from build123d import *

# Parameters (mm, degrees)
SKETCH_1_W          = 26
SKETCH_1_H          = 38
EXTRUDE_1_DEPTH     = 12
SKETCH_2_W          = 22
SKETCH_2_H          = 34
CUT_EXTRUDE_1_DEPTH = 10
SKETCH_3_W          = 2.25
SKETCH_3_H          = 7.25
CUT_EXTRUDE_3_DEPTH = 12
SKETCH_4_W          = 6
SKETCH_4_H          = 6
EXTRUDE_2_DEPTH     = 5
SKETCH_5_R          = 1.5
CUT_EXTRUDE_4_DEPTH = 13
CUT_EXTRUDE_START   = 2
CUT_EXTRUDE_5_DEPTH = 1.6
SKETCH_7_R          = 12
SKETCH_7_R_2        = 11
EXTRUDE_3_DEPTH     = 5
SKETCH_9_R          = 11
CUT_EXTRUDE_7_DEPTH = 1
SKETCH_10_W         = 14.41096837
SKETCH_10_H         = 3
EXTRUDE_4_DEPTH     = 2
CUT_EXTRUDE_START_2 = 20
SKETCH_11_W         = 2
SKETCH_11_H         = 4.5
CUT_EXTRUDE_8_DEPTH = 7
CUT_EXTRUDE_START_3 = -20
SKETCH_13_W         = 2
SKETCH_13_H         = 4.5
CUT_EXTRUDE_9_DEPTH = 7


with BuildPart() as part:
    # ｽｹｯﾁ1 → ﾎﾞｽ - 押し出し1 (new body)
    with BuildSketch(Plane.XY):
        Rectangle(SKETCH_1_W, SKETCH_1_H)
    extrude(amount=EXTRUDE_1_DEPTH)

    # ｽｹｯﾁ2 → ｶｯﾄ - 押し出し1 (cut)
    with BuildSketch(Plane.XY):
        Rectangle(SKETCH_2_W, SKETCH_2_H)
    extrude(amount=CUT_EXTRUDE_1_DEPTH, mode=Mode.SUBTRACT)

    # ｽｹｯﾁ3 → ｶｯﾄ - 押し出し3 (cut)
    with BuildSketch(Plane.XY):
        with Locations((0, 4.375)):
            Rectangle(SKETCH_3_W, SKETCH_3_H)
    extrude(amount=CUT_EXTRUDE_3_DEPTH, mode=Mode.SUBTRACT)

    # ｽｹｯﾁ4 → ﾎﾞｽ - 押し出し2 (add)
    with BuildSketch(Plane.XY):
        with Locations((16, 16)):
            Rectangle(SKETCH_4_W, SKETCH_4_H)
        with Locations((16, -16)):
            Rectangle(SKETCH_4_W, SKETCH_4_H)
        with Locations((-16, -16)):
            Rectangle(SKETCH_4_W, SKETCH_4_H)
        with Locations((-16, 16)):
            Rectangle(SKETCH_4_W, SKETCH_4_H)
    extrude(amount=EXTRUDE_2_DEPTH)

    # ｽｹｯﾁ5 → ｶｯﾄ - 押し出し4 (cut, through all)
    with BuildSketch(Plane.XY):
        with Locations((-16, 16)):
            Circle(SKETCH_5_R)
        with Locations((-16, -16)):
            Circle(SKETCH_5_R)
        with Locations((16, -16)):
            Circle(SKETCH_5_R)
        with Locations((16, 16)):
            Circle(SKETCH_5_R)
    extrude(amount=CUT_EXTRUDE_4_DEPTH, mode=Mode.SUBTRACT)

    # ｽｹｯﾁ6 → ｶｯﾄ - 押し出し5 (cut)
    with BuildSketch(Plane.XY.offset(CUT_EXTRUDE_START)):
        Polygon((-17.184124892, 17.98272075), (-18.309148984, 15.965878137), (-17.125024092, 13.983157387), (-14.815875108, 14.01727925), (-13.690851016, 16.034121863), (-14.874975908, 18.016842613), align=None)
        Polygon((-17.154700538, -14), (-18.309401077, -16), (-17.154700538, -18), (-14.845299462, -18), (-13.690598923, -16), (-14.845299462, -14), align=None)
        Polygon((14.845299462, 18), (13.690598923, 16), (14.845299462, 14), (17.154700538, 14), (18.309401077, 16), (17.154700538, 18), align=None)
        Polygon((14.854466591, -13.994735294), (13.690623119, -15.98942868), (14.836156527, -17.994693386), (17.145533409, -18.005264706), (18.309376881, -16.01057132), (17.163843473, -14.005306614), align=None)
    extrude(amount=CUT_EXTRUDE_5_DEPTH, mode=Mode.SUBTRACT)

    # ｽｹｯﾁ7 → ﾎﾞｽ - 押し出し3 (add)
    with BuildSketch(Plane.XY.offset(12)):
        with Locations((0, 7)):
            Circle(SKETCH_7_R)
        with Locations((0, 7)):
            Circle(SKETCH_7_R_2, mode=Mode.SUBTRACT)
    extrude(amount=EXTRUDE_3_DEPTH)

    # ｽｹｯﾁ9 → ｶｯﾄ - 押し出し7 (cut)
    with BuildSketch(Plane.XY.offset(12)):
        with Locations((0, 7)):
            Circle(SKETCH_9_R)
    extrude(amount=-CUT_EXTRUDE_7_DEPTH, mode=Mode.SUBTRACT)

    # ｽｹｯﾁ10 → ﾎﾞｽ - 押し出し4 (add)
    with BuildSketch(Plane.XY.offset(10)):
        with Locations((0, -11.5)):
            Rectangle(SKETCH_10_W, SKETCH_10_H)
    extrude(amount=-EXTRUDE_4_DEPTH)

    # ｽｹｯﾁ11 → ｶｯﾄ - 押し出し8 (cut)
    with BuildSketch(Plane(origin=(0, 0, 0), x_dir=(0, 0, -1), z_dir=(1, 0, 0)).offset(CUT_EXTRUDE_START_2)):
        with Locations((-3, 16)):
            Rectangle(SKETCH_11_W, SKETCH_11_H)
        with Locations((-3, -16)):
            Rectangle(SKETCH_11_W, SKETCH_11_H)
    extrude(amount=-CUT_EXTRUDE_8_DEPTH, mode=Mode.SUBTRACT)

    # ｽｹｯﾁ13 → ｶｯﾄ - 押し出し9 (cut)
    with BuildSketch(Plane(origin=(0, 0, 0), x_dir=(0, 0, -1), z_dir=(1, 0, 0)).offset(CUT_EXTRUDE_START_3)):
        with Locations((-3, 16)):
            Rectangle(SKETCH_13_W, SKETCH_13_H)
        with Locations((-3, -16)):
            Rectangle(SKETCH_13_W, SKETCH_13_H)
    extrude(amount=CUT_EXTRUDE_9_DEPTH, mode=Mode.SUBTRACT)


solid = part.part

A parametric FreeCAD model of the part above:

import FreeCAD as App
import Part
import Sketcher
Q = App.Units.Quantity


def add_polygon(sketch, points):
    """Adds a closed chain of lines whose ends are joined by coincident constraints."""
    first, n = sketch.GeometryCount, len(points)
    for a, b in zip(points, points[1:] + points[:1]):
        sketch.addGeometry(Part.LineSegment(App.Vector(*a, 0), App.Vector(*b, 0)), False)
    for i in range(n):
        sketch.addConstraint(Sketcher.Constraint("Coincident", first + i, 2, first + (i + 1) % n, 1))

doc = App.newDocument("Part")
body = doc.addObject("PartDesign::Body", "Body")

# Sketch on XY plane
sketch1 = body.newObject("Sketcher::SketchObject", "Sketch")
sketch1.AttachmentSupport = (doc.getObject("XY_Plane"), [""])
sketch1.MapMode = "FlatFace"
add_polygon(sketch1, [(-13, 19), (-13, -19), (13, -19), (13, 19)])  # lines 0-3
sketch1.addConstraint(Sketcher.Constraint("Vertical", 0))
sketch1.addConstraint(Sketcher.Constraint("Horizontal", 1))
sketch1.addConstraint(Sketcher.Constraint("Vertical", 2))
sketch1.addConstraint(Sketcher.Constraint("Horizontal", 3))
sketch1.addConstraint(Sketcher.Constraint("Symmetric", 0, 2, 2, 2, -1, 1))
sketch1.addConstraint(Sketcher.Constraint("DistanceX", 1, 1, 1, 2, Q("26 mm")))
sketch1.addConstraint(Sketcher.Constraint("DistanceY", 0, 2, 0, 1, Q("38 mm")))
pad1 = body.newObject("PartDesign::Pad", "Pad")
pad1.Profile = sketch1
pad1.Length = 12

# Sketch on XY plane
sketch2 = body.newObject("Sketcher::SketchObject", "Sketch001")
sketch2.AttachmentSupport = (doc.getObject("XY_Plane"), [""])
sketch2.MapMode = "FlatFace"
add_polygon(sketch2, [(-11, 17), (-11, -17), (11, -17), (11, 17)])  # lines 0-3
sketch2.addConstraint(Sketcher.Constraint("Vertical", 0))
sketch2.addConstraint(Sketcher.Constraint("Horizontal", 1))
sketch2.addConstraint(Sketcher.Constraint("Vertical", 2))
sketch2.addConstraint(Sketcher.Constraint("Horizontal", 3))
sketch2.addConstraint(Sketcher.Constraint("Symmetric", 0, 2, 2, 2, -1, 1))
sketch2.addConstraint(Sketcher.Constraint("DistanceX", 1, 1, 1, 2, Q("22 mm")))
sketch2.addConstraint(Sketcher.Constraint("DistanceY", 0, 2, 0, 1, Q("34 mm")))
pocket1 = body.newObject("PartDesign::Pocket", "Pocket")
pocket1.Profile = sketch2
pocket1.Length = 10
pocket1.Reversed = True

# Sketch on XY plane
sketch3 = body.newObject("Sketcher::SketchObject", "Sketch002")
sketch3.AttachmentSupport = (doc.getObject("XY_Plane"), [""])
sketch3.MapMode = "FlatFace"
add_polygon(sketch3, [(-1.1, 8), (-1.1, 0.8), (1.1, 0.8), (1.1, 8)])  # lines 0-3
sketch3.addConstraint(Sketcher.Constraint("Vertical", 0))
sketch3.addConstraint(Sketcher.Constraint("Horizontal", 1))
sketch3.addConstraint(Sketcher.Constraint("Vertical", 2))
sketch3.addConstraint(Sketcher.Constraint("Horizontal", 3))
sketch3.addConstraint(Sketcher.Constraint("DistanceY", -1, 1, 2, 2, Q("8 mm")))
sketch3.addConstraint(Sketcher.Constraint("DistanceX", 1, 1, 1, 2, Q("2.25 mm")))
sketch3.addConstraint(Sketcher.Constraint("DistanceY", 0, 2, 0, 1, Q("7.25 mm")))
sketch3.addConstraint(Sketcher.Constraint("DistanceX", 0, 2, -1, 1, Q("1.125 mm")))
pocket2 = body.newObject("PartDesign::Pocket", "Pocket001")
pocket2.Profile = sketch3
pocket2.Length = 12
pocket2.Reversed = True

# Sketch on XY plane
sketch4 = body.newObject("Sketcher::SketchObject", "Sketch003")
sketch4.AttachmentSupport = (doc.getObject("XY_Plane"), [""])
sketch4.MapMode = "FlatFace"
add_polygon(sketch4, [(13, 19), (13, 13), (19, 13), (19, 19)])  # lines 0-3
add_polygon(sketch4, [(13, -13), (13, -19), (19, -19), (19, -13)])  # lines 4-7
add_polygon(sketch4, [(-19, -13), (-19, -19), (-13, -19), (-13, -13)])  # lines 8-11
add_polygon(sketch4, [(-19, 19), (-19, 13), (-13, 13), (-13, 19)])  # lines 12-15
sketch4.addConstraint(Sketcher.Constraint("Vertical", 0))
sketch4.addConstraint(Sketcher.Constraint("Horizontal", 1))
sketch4.addConstraint(Sketcher.Constraint("Vertical", 2))
sketch4.addConstraint(Sketcher.Constraint("Horizontal", 3))
sketch4.addConstraint(Sketcher.Constraint("Vertical", 4))
sketch4.addConstraint(Sketcher.Constraint("Horizontal", 5))
sketch4.addConstraint(Sketcher.Constraint("Vertical", 6))
sketch4.addConstraint(Sketcher.Constraint("Horizontal", 7))
sketch4.addConstraint(Sketcher.Constraint("Vertical", 8))
sketch4.addConstraint(Sketcher.Constraint("Horizontal", 9))
sketch4.addConstraint(Sketcher.Constraint("Vertical", 10))
sketch4.addConstraint(Sketcher.Constraint("Horizontal", 11))
sketch4.addConstraint(Sketcher.Constraint("Vertical", 12))
sketch4.addConstraint(Sketcher.Constraint("Horizontal", 13))
sketch4.addConstraint(Sketcher.Constraint("Vertical", 14))
sketch4.addConstraint(Sketcher.Constraint("Horizontal", 15))
sketch4.addConstraint(Sketcher.Constraint("Symmetric", 2, 2, 8, 2, -1, 1))
sketch4.addConstraint(Sketcher.Constraint("Symmetric", 0, 2, 10, 2, -1, 1))
sketch4.addConstraint(Sketcher.Constraint("Symmetric", 6, 2, 12, 2, -1, 1))
sketch4.addConstraint(Sketcher.Constraint("Symmetric", 4, 2, 14, 2, -1, 1))
sketch4.addConstraint(Sketcher.Constraint("Symmetric", 5, 2, 8, 2, -2))
sketch4.addConstraint(Sketcher.Constraint("Symmetric", 7, 2, 10, 2, -2))
sketch4.addConstraint(Sketcher.Constraint("Equal", 15, 0))
sketch4.addConstraint(Sketcher.Constraint("DistanceX", 1, 1, 1, 2, Q("6 mm")))
sketch4.addConstraint(Sketcher.Constraint("DistanceX", -1, 1, 0, 2, Q("13 mm")))
sketch4.addConstraint(Sketcher.Constraint("DistanceY", -1, 1, 0, 2, Q("13 mm")))
pad2 = body.newObject("PartDesign::Pad", "Pad001")
pad2.Profile = sketch4
pad2.Length = 5

# Sketch on XY plane
sketch5 = body.newObject("Sketcher::SketchObject", "Sketch004")
sketch5.AttachmentSupport = (doc.getObject("XY_Plane"), [""])
sketch5.MapMode = "FlatFace"
sketch5.addGeometry(Part.Circle(App.Vector(-16, 16, 0), App.Vector(0, 0, 1), 1.5), False)
sketch5.addGeometry(Part.Circle(App.Vector(-16, -16, 0), App.Vector(0, 0, 1), 1.5), False)
sketch5.addGeometry(Part.Circle(App.Vector(16, -16, 0), App.Vector(0, 0, 1), 1.5), False)
sketch5.addGeometry(Part.Circle(App.Vector(16, 16, 0), App.Vector(0, 0, 1), 1.5), False)
sketch5.addConstraint(Sketcher.Constraint("Equal", 0, 1))
sketch5.addConstraint(Sketcher.Constraint("Equal", 1, 2))
sketch5.addConstraint(Sketcher.Constraint("Equal", 2, 3))
sketch5.addConstraint(Sketcher.Constraint("Symmetric", 0, 3, 2, 3, -1, 1))
sketch5.addConstraint(Sketcher.Constraint("Symmetric", 1, 3, 3, 3, -1, 1))
sketch5.addConstraint(Sketcher.Constraint("Symmetric", 1, 3, 2, 3, -2))
sketch5.addConstraint(Sketcher.Constraint("Diameter", 0, Q("3 mm")))
sketch5.addConstraint(Sketcher.Constraint("DistanceX", 0, 3, -1, 1, Q("16 mm")))
sketch5.addConstraint(Sketcher.Constraint("DistanceY", -1, 1, 0, 3, Q("16 mm")))
pocket3 = body.newObject("PartDesign::Pocket", "Pocket002")
pocket3.Profile = sketch5
pocket3.Type = "ThroughAll"
pocket3.Reversed = True

# Sketch on XY plane
sketch6 = body.newObject("Sketcher::SketchObject", "Sketch005")
sketch6.AttachmentSupport = (doc.getObject("XY_Plane"), [""])
sketch6.MapMode = "FlatFace"
sketch6.AttachmentOffset = App.Placement(App.Vector(0, 0, 2), App.Rotation())
add_polygon(sketch6, [(-17.2, 18), (-18.3, 16), (-17.1, 14), (-14.8, 14), (-13.7, 16), (-14.9, 18)])  # lines 0-5
add_polygon(sketch6, [(-17.2, -14), (-18.3, -16), (-17.2, -18), (-14.8, -18), (-13.7, -16), (-14.8, -14)])  # lines 6-11
add_polygon(sketch6, [(14.8, 18), (13.7, 16), (14.8, 14), (17.2, 14), (18.3, 16), (17.2, 18)])  # lines 12-17
add_polygon(sketch6, [(14.9, -14), (13.7, -16), (14.8, -18), (17.1, -18), (18.3, -16), (17.2, -14)])  # lines 18-23
sketch6.addConstraint(Sketcher.Constraint("Horizontal", 8))
sketch6.addConstraint(Sketcher.Constraint("Horizontal", 11))
sketch6.addConstraint(Sketcher.Constraint("Horizontal", 14))
sketch6.addConstraint(Sketcher.Constraint("Horizontal", 17))
sketch6.addConstraint(Sketcher.Constraint("Symmetric", 9, 2, 12, 2, -1, 1))
sketch6.addConstraint(Sketcher.Constraint("Symmetric", 10, 2, 13, 2, -1, 1))
sketch6.addConstraint(Sketcher.Constraint("Symmetric", 6, 2, 15, 2, -1, 1))
sketch6.addConstraint(Sketcher.Constraint("Symmetric", 7, 2, 16, 2, -1, 1))
sketch6.addConstraint(Sketcher.Constraint("Parallel", 0, 3))
sketch6.addConstraint(Sketcher.Constraint("Parallel", 1, 4))
sketch6.addConstraint(Sketcher.Constraint("Parallel", 2, 5))
sketch6.addConstraint(Sketcher.Constraint("Parallel", 6, 9))
sketch6.addConstraint(Sketcher.Constraint("Parallel", 7, 10))
sketch6.addConstraint(Sketcher.Constraint("Parallel", 9, 12))
sketch6.addConstraint(Sketcher.Constraint("Parallel", 12, 15))
sketch6.addConstraint(Sketcher.Constraint("Parallel", 18, 21))
sketch6.addConstraint(Sketcher.Constraint("Parallel", 19, 22))
sketch6.addConstraint(Sketcher.Constraint("Parallel", 20, 23))
sketch6.addConstraint(Sketcher.Constraint("Horizontal", 6, 2, 9, 2))
sketch6.addConstraint(Sketcher.Constraint("Vertical", 8, 2, 10, 2))
sketch6.addConstraint(Sketcher.Constraint("Vertical", 7, 2, 11, 2))
sketch6.addConstraint(Sketcher.Constraint("Equal", 0, 1))
sketch6.addConstraint(Sketcher.Constraint("Equal", 1, 2))
sketch6.addConstraint(Sketcher.Constraint("Equal", 2, 3))
sketch6.addConstraint(Sketcher.Constraint("Equal", 5, 6))
sketch6.addConstraint(Sketcher.Constraint("Equal", 16, 18))
sketch6.addConstraint(Sketcher.Constraint("Equal", 18, 19))
sketch6.addConstraint(Sketcher.Constraint("Equal", 19, 20))
sketch6.addConstraint(Sketcher.Constraint("Equal", 20, 21))
sketch6.addConstraint(Sketcher.Constraint("Angle", 6, Q("-120 deg")))
sketch6.addConstraint(Sketcher.Constraint("DistanceY", 6, 2, -1, 1, Q("16 mm")))
sketch6.addConstraint(Sketcher.Constraint("DistanceY", 7, 2, -1, 1, Q("18 mm")))
sketch6.addConstraint(Sketcher.Constraint("DistanceX", 8, 1, 8, 2, Q("2.309401 mm")))
sketch6.addConstraint(Sketcher.Constraint("DistanceX", 6, 2, -1, 1, Q("18.309401 mm")))
sketch6.addConstraint(Sketcher.Constraint("DistanceY", 2, 2, 0, 2, Q("1.948599 mm")))
sketch6.addConstraint(Sketcher.Constraint("DistanceX", 4, 2, 2, 2, Q("0.059101 mm")))
sketch6.addConstraint(Sketcher.Constraint("DistanceX", 0, 2, -1, 1, Q("18.309149 mm")))
sketch6.addConstraint(Sketcher.Constraint("DistanceY", -1, 1, 0, 2, Q("15.965878 mm")))
sketch6.addConstraint(Sketcher.Constraint("DistanceX", 3, 2, -1, 1, Q("13.690851 mm")))
sketch6.addConstraint(Sketcher.Constraint("DistanceY", 18, 2, -1, 1, Q("15.989429 mm")))
sketch6.addConstraint(Sketcher.Constraint("DistanceY", 21, 2, -1, 1, Q("16.010571 mm")))
sketch6.addConstraint(Sketcher.Constraint("DistanceY", 20, 2, 19, 2, Q("0.010571 mm")))
sketch6.addConstraint(Sketcher.Constraint("DistanceX", 18, 2, 20, 2, Q("3.45491 mm")))
sketch6.addConstraint(Sketcher.Constraint("DistanceX", -1, 1, 18, 2, Q("13.690623 mm")))
pocket4 = body.newObject("PartDesign::Pocket", "Pocket003")
pocket4.Profile = sketch6
pocket4.Length = 1.6
pocket4.Reversed = True

# Sketch on XY plane
sketch7 = body.newObject("Sketcher::SketchObject", "Sketch006")
sketch7.AttachmentSupport = (doc.getObject("XY_Plane"), [""])
sketch7.MapMode = "FlatFace"
sketch7.AttachmentOffset = App.Placement(App.Vector(0, 0, 12), App.Rotation())
sketch7.addGeometry(Part.Circle(App.Vector(0, 7, 0), App.Vector(0, 0, 1), 12), False)
sketch7.addGeometry(Part.Circle(App.Vector(0, 7, 0), App.Vector(0, 0, 1), 11), False)
sketch7.addConstraint(Sketcher.Constraint("Coincident", 1, 3, 0, 3))
sketch7.addConstraint(Sketcher.Constraint("PointOnObject", 0, 3, -2))
sketch7.addConstraint(Sketcher.Constraint("Diameter", 0, Q("24 mm")))
sketch7.addConstraint(Sketcher.Constraint("Diameter", 1, Q("22 mm")))
sketch7.addConstraint(Sketcher.Constraint("DistanceY", -1, 1, 0, 3, Q("7 mm")))
pad3 = body.newObject("PartDesign::Pad", "Pad002")
pad3.Profile = sketch7
pad3.Length = 5

# Sketch on XY plane
sketch8 = body.newObject("Sketcher::SketchObject", "Sketch007")
sketch8.AttachmentSupport = (doc.getObject("XY_Plane"), [""])
sketch8.MapMode = "FlatFace"
sketch8.AttachmentOffset = App.Placement(App.Vector(0, 0, 12), App.Rotation())
sketch8.addGeometry(Part.Circle(App.Vector(0, 7, 0), App.Vector(0, 0, 1), 11), False)
sketch8.addConstraint(Sketcher.Constraint("PointOnObject", 0, 3, -2))
sketch8.addConstraint(Sketcher.Constraint("Diameter", 0, Q("22 mm")))
sketch8.addConstraint(Sketcher.Constraint("DistanceY", -1, 1, 0, 3, Q("7 mm")))
pocket5 = body.newObject("PartDesign::Pocket", "Pocket004")
pocket5.Profile = sketch8
pocket5.Length = 1

# Sketch on XY plane
sketch9 = body.newObject("Sketcher::SketchObject", "Sketch008")
sketch9.AttachmentSupport = (doc.getObject("XY_Plane"), [""])
sketch9.MapMode = "FlatFace"
sketch9.AttachmentOffset = App.Placement(App.Vector(0, 0, 10), App.Rotation())
add_polygon(sketch9, [(-7.2, -10), (-7.2, -13), (7.2, -13), (7.2, -10)])  # lines 0-3
sketch9.addConstraint(Sketcher.Constraint("Vertical", 0))
sketch9.addConstraint(Sketcher.Constraint("Horizontal", 1))
sketch9.addConstraint(Sketcher.Constraint("Vertical", 2))
sketch9.addConstraint(Sketcher.Constraint("Horizontal", 3))
sketch9.addConstraint(Sketcher.Constraint("DistanceY", 0, 2, 0, 1, Q("3 mm")))
sketch9.addConstraint(Sketcher.Constraint("DistanceY", 0, 2, -1, 1, Q("13 mm")))
sketch9.addConstraint(Sketcher.Constraint("DistanceX", 1, 1, 1, 2, Q("14.410968 mm")))
sketch9.addConstraint(Sketcher.Constraint("DistanceX", 0, 2, -1, 1, Q("7.205484 mm")))
pad4 = body.newObject("PartDesign::Pad", "Pad003")
pad4.Profile = sketch9
pad4.Length = 2
pad4.Reversed = True

# Sketch on YZ plane
sketch10 = body.newObject("Sketcher::SketchObject", "Sketch009")
sketch10.AttachmentSupport = (doc.getObject("YZ_Plane"), [""])
sketch10.MapMode = "FlatFace"
sketch10.AttachmentOffset = App.Placement(App.Vector(0, 0, 20), App.Rotation())
add_polygon(sketch10, [(18.2, 4), (13.8, 4), (13.8, 2), (18.2, 2)])  # lines 0-3
add_polygon(sketch10, [(-13.8, 4), (-18.2, 4), (-18.2, 2), (-13.8, 2)])  # lines 4-7
sketch10.addConstraint(Sketcher.Constraint("Horizontal", 0))
sketch10.addConstraint(Sketcher.Constraint("Vertical", 1))
sketch10.addConstraint(Sketcher.Constraint("Horizontal", 2))
sketch10.addConstraint(Sketcher.Constraint("Vertical", 3))
sketch10.addConstraint(Sketcher.Constraint("Horizontal", 4))
sketch10.addConstraint(Sketcher.Constraint("Vertical", 5))
sketch10.addConstraint(Sketcher.Constraint("Horizontal", 6))
sketch10.addConstraint(Sketcher.Constraint("Vertical", 7))
sketch10.addConstraint(Sketcher.Constraint("Symmetric", 3, 2, 4, 2, -2))
sketch10.addConstraint(Sketcher.Constraint("Symmetric", 1, 2, 6, 2, -2))
sketch10.addConstraint(Sketcher.Constraint("DistanceY", 1, 2, 1, 1, Q("2 mm")))
sketch10.addConstraint(Sketcher.Constraint("DistanceX", 0, 2, 0, 1, Q("4.5 mm")))
sketch10.addConstraint(Sketcher.Constraint("DistanceY", -1, 1, 0, 2, Q("4 mm")))
sketch10.addConstraint(Sketcher.Constraint("DistanceX", 4, 2, 0, 2, Q("32 mm")))
pocket6 = body.newObject("PartDesign::Pocket", "Pocket005")
pocket6.Profile = sketch10
pocket6.Length = 7

# Sketch on YZ plane
sketch11 = body.newObject("Sketcher::SketchObject", "Sketch010")
sketch11.AttachmentSupport = (doc.getObject("YZ_Plane"), [""])
sketch11.MapMode = "FlatFace"
sketch11.AttachmentOffset = App.Placement(App.Vector(0, 0, -20), App.Rotation())
add_polygon(sketch11, [(18.2, 4), (13.8, 4), (13.8, 2), (18.2, 2)])  # lines 0-3
add_polygon(sketch11, [(-13.8, 4), (-18.2, 4), (-18.2, 2), (-13.8, 2)])  # lines 4-7
sketch11.addConstraint(Sketcher.Constraint("Horizontal", 0))
sketch11.addConstraint(Sketcher.Constraint("Vertical", 1))
sketch11.addConstraint(Sketcher.Constraint("Horizontal", 2))
sketch11.addConstraint(Sketcher.Constraint("Vertical", 3))
sketch11.addConstraint(Sketcher.Constraint("Horizontal", 4))
sketch11.addConstraint(Sketcher.Constraint("Vertical", 5))
sketch11.addConstraint(Sketcher.Constraint("Horizontal", 6))
sketch11.addConstraint(Sketcher.Constraint("Vertical", 7))
sketch11.addConstraint(Sketcher.Constraint("Symmetric", 3, 2, 4, 2, -2))
sketch11.addConstraint(Sketcher.Constraint("Symmetric", 1, 2, 6, 2, -2))
sketch11.addConstraint(Sketcher.Constraint("DistanceY", 1, 2, 1, 1, Q("2 mm")))
sketch11.addConstraint(Sketcher.Constraint("DistanceX", 0, 2, 0, 1, Q("4.5 mm")))
sketch11.addConstraint(Sketcher.Constraint("DistanceY", -1, 1, 0, 2, Q("4 mm")))
sketch11.addConstraint(Sketcher.Constraint("DistanceX", 4, 2, 0, 2, Q("32 mm")))
pocket7 = body.newObject("PartDesign::Pocket", "Pocket006")
pocket7.Profile = sketch11
pocket7.Length = 7
pocket7.Reversed = True

doc.recompute()
